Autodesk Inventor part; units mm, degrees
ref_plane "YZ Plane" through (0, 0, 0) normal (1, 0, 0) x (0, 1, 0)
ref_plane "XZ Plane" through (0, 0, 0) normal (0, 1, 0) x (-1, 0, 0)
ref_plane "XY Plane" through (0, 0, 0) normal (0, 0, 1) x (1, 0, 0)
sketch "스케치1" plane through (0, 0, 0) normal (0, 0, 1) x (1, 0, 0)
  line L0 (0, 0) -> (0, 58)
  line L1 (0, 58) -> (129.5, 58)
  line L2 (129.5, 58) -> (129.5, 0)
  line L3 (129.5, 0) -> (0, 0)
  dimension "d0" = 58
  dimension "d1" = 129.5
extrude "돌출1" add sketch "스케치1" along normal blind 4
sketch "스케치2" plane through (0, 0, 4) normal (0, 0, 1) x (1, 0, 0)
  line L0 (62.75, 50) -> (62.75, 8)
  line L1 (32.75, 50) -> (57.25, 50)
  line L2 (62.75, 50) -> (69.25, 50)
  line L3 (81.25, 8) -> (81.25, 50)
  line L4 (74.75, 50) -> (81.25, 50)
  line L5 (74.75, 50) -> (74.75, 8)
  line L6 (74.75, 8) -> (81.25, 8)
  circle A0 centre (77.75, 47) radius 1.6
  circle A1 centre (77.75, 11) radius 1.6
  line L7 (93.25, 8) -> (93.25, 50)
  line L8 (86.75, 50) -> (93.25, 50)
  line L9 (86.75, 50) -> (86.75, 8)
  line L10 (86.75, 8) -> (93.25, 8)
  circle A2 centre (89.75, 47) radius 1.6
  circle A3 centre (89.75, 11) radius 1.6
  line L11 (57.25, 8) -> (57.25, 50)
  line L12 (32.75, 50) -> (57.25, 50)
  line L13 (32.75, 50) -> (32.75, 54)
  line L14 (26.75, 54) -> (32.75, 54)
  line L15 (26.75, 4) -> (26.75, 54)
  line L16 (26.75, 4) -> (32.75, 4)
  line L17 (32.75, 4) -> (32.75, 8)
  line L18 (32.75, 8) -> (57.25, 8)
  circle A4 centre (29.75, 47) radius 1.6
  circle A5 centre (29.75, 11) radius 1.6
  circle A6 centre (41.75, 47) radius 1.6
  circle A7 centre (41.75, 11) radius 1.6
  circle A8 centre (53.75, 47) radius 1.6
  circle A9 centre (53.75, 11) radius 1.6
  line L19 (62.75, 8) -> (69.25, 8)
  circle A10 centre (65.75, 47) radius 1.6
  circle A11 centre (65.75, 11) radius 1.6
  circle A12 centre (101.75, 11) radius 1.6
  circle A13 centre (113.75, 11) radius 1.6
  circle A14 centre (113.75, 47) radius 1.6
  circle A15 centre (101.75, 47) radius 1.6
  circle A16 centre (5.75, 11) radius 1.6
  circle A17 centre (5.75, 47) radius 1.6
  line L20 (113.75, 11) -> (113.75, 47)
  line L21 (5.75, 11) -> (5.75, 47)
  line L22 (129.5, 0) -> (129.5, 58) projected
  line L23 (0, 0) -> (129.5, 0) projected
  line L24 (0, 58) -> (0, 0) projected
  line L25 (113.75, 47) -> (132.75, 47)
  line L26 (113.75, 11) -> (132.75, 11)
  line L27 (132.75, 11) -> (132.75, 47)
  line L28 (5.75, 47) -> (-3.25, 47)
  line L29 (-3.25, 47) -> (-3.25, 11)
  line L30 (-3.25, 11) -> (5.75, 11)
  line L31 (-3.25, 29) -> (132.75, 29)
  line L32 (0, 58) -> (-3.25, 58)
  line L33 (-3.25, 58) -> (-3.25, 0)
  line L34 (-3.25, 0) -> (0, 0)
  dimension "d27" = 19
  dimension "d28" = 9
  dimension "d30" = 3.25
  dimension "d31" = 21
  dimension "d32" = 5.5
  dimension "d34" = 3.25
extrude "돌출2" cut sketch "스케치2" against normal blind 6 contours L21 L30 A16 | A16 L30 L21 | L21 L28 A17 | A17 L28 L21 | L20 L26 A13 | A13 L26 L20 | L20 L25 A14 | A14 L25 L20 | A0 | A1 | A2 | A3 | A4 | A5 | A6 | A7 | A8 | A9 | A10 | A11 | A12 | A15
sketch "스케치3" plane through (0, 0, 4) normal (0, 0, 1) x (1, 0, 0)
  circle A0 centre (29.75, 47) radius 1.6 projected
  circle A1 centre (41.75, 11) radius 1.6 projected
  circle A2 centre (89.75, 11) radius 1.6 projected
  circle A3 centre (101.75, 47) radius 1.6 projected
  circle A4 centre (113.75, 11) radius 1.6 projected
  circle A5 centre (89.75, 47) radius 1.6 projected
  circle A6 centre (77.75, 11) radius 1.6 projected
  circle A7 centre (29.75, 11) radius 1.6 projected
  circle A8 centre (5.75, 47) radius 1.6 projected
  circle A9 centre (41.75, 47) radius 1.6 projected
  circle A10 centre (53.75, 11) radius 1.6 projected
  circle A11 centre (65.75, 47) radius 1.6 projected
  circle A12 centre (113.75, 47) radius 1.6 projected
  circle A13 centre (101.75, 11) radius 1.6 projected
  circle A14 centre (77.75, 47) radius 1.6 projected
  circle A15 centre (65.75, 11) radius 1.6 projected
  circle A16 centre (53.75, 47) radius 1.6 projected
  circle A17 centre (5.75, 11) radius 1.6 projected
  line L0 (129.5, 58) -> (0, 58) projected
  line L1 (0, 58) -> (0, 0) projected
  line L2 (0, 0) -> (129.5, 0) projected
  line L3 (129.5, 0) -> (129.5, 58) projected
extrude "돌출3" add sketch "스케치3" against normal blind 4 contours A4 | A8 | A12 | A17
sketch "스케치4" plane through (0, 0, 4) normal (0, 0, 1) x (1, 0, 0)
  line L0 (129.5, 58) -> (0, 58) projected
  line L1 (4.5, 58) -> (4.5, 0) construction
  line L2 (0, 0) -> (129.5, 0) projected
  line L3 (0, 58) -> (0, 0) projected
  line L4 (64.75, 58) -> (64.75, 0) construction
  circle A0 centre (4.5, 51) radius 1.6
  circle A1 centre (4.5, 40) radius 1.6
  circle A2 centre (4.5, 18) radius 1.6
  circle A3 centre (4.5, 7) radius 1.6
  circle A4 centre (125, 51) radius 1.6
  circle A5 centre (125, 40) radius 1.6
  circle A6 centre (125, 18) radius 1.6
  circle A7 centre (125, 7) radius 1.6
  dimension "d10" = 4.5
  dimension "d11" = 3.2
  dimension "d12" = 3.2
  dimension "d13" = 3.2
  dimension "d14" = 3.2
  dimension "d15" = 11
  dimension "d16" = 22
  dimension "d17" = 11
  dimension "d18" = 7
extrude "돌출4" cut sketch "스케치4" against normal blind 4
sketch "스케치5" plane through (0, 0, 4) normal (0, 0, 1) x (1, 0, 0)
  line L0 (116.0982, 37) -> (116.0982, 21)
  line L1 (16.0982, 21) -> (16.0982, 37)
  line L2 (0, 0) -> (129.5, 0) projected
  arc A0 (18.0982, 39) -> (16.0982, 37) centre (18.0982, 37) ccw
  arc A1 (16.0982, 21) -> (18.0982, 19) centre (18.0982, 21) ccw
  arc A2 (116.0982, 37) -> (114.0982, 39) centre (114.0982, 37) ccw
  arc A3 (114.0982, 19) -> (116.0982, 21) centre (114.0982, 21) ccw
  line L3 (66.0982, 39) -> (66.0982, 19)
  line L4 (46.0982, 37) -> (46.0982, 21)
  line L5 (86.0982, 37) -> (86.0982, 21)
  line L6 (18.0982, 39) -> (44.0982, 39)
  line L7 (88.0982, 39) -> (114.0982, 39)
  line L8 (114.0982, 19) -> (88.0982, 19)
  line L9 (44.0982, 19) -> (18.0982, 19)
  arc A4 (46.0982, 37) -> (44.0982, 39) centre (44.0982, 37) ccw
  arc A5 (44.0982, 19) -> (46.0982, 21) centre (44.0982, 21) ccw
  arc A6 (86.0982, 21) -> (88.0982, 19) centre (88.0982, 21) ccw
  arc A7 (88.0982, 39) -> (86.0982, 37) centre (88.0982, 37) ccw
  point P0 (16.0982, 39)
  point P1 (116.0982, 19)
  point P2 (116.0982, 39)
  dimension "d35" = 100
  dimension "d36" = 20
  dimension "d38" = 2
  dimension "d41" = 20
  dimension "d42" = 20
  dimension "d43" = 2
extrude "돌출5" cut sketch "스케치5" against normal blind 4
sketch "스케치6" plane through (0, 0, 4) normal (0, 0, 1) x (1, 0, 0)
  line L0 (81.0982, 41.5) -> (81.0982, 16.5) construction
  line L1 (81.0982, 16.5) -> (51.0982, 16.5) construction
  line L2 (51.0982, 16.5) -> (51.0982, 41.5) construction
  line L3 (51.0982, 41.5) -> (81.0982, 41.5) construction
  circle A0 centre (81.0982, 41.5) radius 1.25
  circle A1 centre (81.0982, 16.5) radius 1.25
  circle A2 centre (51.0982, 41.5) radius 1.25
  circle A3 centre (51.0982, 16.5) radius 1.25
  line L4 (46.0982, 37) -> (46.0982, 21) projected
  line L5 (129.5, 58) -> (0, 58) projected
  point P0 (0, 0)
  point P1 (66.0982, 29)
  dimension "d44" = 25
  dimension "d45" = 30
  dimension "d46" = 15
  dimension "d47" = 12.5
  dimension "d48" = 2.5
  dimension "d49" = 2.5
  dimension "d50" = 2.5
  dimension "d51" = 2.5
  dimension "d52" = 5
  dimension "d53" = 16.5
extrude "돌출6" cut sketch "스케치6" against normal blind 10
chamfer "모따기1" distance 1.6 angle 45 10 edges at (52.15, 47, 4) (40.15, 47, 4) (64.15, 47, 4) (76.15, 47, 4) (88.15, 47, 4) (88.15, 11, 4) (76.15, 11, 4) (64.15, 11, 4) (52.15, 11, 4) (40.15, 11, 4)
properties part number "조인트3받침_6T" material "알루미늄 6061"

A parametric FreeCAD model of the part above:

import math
import FreeCAD as App
import Part
import Sketcher

V = App.Vector
Q = App.Units.Quantity


def edges_at(feature, points):
    """Names of the edges that pass closest to the given points."""
    edges = feature.Shape.Edges
    near = lambda p: min(range(len(edges)), key=lambda i: edges[i].distToShape(Part.Vertex(*p))[0])
    return sorted({f"Edge{near(p) + 1}" for p in points})


def add_polygon(sketch, points):
    """Adds a closed chain of lines whose ends are joined by coincident constraints."""
    first, n = sketch.GeometryCount, len(points)
    for a, b in zip(points, points[1:] + points[:1]):
        sketch.addGeometry(Part.LineSegment(App.Vector(*a, 0), App.Vector(*b, 0)), False)
    for i in range(n):
        sketch.addConstraint(Sketcher.Constraint("Coincident", first + i, 2, first + (i + 1) % n, 1))

doc = App.newDocument("Part")
body = doc.addObject("PartDesign::Body", "Body")

sketch1 = doc.addObject("Sketcher::SketchObject", "Sketch")
body.addObject(sketch1)
sketch1.AttachmentSupport = (doc.XY_Plane, [""])
sketch1.MapMode = "FlatFace"
add_polygon(sketch1, [(0, 58), (0, 0), (130, 0), (130, 58)])
sketch1.addConstraint([
    Sketcher.Constraint("Vertical", 0),
    Sketcher.Constraint("Horizontal", 1),
    Sketcher.Constraint("Vertical", 2),
    Sketcher.Constraint("Horizontal", 3),
    Sketcher.Constraint("Coincident", 0, 2, -1, 1),
    Sketcher.Constraint("DistanceY", 0, 2, 0, 1, Q("58 mm")),
    Sketcher.Constraint("DistanceX", 1, 1, 1, 2, Q("129.5 mm")),
])
pad1 = doc.addObject("PartDesign::Pad", "Pad")
body.addObject(pad1)
pad1.Profile = sketch1
pad1.Length = 4

sketch2 = doc.addObject("Sketcher::SketchObject", "Sketch001")
body.addObject(sketch2)
sketch2.AttachmentSupport = (doc.XY_Plane, [""])
sketch2.MapMode = "FlatFace"
sketch2.AttachmentOffset = App.Placement(V(0, 0, 4), App.Rotation())
sketch2.addGeometry([
    Part.Circle(V(5.8, 11, 0), V(0, 0, 1), 1.6),
    Part.Circle(V(5.8, 47, 0), V(0, 0, 1), 1.6),
    Part.Circle(V(113.8, 11, 0), V(0, 0, 1), 1.6),
    Part.Circle(V(113.8, 47, 0), V(0, 0, 1), 1.6),
    Part.Circle(V(77.8, 47, 0), V(0, 0, 1), 1.6),
    Part.Circle(V(77.8, 11, 0), V(0, 0, 1), 1.6),
    Part.Circle(V(89.8, 47, 0), V(0, 0, 1), 1.6),
    Part.Circle(V(89.8, 11, 0), V(0, 0, 1), 1.6),
    Part.Circle(V(29.8, 47, 0), V(0, 0, 1), 1.6),
    Part.Circle(V(29.8, 11, 0), V(0, 0, 1), 1.6),
    Part.Circle(V(41.8, 47, 0), V(0, 0, 1), 1.6),
    Part.Circle(V(41.8, 11, 0), V(0, 0, 1), 1.6),
    Part.Circle(V(53.8, 47, 0), V(0, 0, 1), 1.6),
    Part.Circle(V(53.8, 11, 0), V(0, 0, 1), 1.6),
    Part.Circle(V(65.8, 47, 0), V(0, 0, 1), 1.6),
    Part.Circle(V(65.8, 11, 0), V(0, 0, 1), 1.6),
    Part.Circle(V(101.8, 11, 0), V(0, 0, 1), 1.6),
    Part.Circle(V(101.8, 47, 0), V(0, 0, 1), 1.6),
], False)
sketch2.addConstraint([
    Sketcher.Constraint("Equal", 0, 1),
    Sketcher.Constraint("Equal", 1, 2),
    Sketcher.Constraint("Equal", 2, 3),
    Sketcher.Constraint("Equal", 3, 4),
    Sketcher.Constraint("Equal", 4, 5),
    Sketcher.Constraint("Equal", 5, 6),
    Sketcher.Constraint("Equal", 6, 7),
    Sketcher.Constraint("Equal", 7, 8),
    Sketcher.Constraint("Equal", 8, 9),
    Sketcher.Constraint("Equal", 9, 10),
    Sketcher.Constraint("Equal", 10, 11),
    Sketcher.Constraint("Equal", 11, 12),
    Sketcher.Constraint("Equal", 12, 13),
    Sketcher.Constraint("Equal", 13, 14),
    Sketcher.Constraint("Equal", 14, 15),
    Sketcher.Constraint("Equal", 15, 16),
    Sketcher.Constraint("Equal", 16, 17),
    Sketcher.Constraint("Horizontal", 0, 3, 2, 3),
    Sketcher.Constraint("Horizontal", 1, 3, 3, 3),
    Sketcher.Constraint("Horizontal", 3, 3, 4, 3),
    Sketcher.Constraint("Horizontal", 2, 3, 5, 3),
    Sketcher.Constraint("Horizontal", 4, 3, 6, 3),
    Sketcher.Constraint("Horizontal", 5, 3, 7, 3),
    Sketcher.Constraint("Horizontal", 6, 3, 8, 3),
    Sketcher.Constraint("Horizontal", 7, 3, 9, 3),
    Sketcher.Constraint("Horizontal", 8, 3, 10, 3),
    Sketcher.Constraint("Horizontal", 9, 3, 11, 3),
    Sketcher.Constraint("Horizontal", 10, 3, 12, 3),
    Sketcher.Constraint("Horizontal", 11, 3, 13, 3),
    Sketcher.Constraint("Horizontal", 12, 3, 14, 3),
    Sketcher.Constraint("Horizontal", 13, 3, 15, 3),
    Sketcher.Constraint("Horizontal", 15, 3, 16, 3),
    Sketcher.Constraint("Horizontal", 14, 3, 17, 3),
    Sketcher.Constraint("Vertical", 0, 3, 1, 3),
    Sketcher.Constraint("Vertical", 2, 3, 3, 3),
    Sketcher.Constraint("Vertical", 4, 3, 5, 3),
    Sketcher.Constraint("Vertical", 6, 3, 7, 3),
    Sketcher.Constraint("Vertical", 8, 3, 9, 3),
    Sketcher.Constraint("Vertical", 10, 3, 11, 3),
    Sketcher.Constraint("Vertical", 12, 3, 13, 3),
    Sketcher.Constraint("Vertical", 14, 3, 15, 3),
    Sketcher.Constraint("Vertical", 16, 3, 17, 3),
    Sketcher.Constraint("Diameter", 0, Q("3.2 mm")),
    Sketcher.Constraint("DistanceY", -1, 1, 0, 3, Q("11 mm")),
    Sketcher.Constraint("DistanceY", -1, 1, 1, 3, Q("47 mm")),
    Sketcher.Constraint("DistanceX", 0, 3, 2, 3, Q("108 mm")),
    Sketcher.Constraint("DistanceX", 4, 3, 3, 3, Q("36 mm")),
    Sketcher.Constraint("DistanceX", 4, 3, 6, 3, Q("12 mm")),
    Sketcher.Constraint("DistanceX", 1, 3, 8, 3, Q("24 mm")),
    Sketcher.Constraint("DistanceX", 8, 3, 10, 3, Q("12 mm")),
    Sketcher.Constraint("DistanceX", 10, 3, 12, 3, Q("12 mm")),
    Sketcher.Constraint("DistanceX", 14, 3, 4, 3, Q("12 mm")),
    Sketcher.Constraint("DistanceX", 16, 3, 2, 3, Q("12 mm")),
    Sketcher.Constraint("DistanceX", -1, 1, 0, 3, Q("5.75 mm")),
])
pocket1 = doc.addObject("PartDesign::Pocket", "Pocket")
body.addObject(pocket1)
pocket1.Profile = sketch2
pocket1.Length = 6

sketch3 = doc.addObject("Sketcher::SketchObject", "Sketch002")
body.addObject(sketch3)
sketch3.AttachmentSupport = (doc.XY_Plane, [""])
sketch3.MapMode = "FlatFace"
sketch3.AttachmentOffset = App.Placement(V(0, 0, 4), App.Rotation())
sketch3.addGeometry([
    Part.Circle(V(113.8, 11, 0), V(0, 0, 1), 1.6),
    Part.Circle(V(5.8, 47, 0), V(0, 0, 1), 1.6),
    Part.Circle(V(113.8, 47, 0), V(0, 0, 1), 1.6),
    Part.Circle(V(5.8, 11, 0), V(0, 0, 1), 1.6),
], False)
sketch3.addConstraint([
    Sketcher.Constraint("Equal", 0, 1),
    Sketcher.Constraint("Equal", 1, 2),
    Sketcher.Constraint("Equal", 2, 3),
    Sketcher.Constraint("Horizontal", 1, 3, 2, 3),
    Sketcher.Constraint("Horizontal", 0, 3, 3, 3),
    Sketcher.Constraint("Vertical", 0, 3, 2, 3),
    Sketcher.Constraint("Vertical", 1, 3, 3, 3),
    Sketcher.Constraint("Diameter", 0, Q("3.2 mm")),
    Sketcher.Constraint("DistanceY", -1, 1, 0, 3, Q("11 mm")),
    Sketcher.Constraint("DistanceY", -1, 1, 1, 3, Q("47 mm")),
    Sketcher.Constraint("DistanceX", 1, 3, 0, 3, Q("108 mm")),
    Sketcher.Constraint("DistanceX", -1, 1, 0, 3, Q("113.75 mm")),
])
pad2 = doc.addObject("PartDesign::Pad", "Pad001")
body.addObject(pad2)
pad2.Profile = sketch3
pad2.Length = 4
pad2.Reversed = True

sketch4 = doc.addObject("Sketcher::SketchObject", "Sketch003")
body.addObject(sketch4)
sketch4.AttachmentSupport = (doc.XY_Plane, [""])
sketch4.MapMode = "FlatFace"
sketch4.AttachmentOffset = App.Placement(V(0, 0, 4), App.Rotation())
sketch4.addGeometry([
    Part.Circle(V(4.5, 51, 0), V(0, 0, 1), 1.6),
    Part.Circle(V(4.5, 40, 0), V(0, 0, 1), 1.6),
    Part.Circle(V(4.5, 18, 0), V(0, 0, 1), 1.6),
    Part.Circle(V(4.5, 7, 0), V(0, 0, 1), 1.6),
    Part.Circle(V(125, 51, 0), V(0, 0, 1), 1.6),
    Part.Circle(V(125, 40, 0), V(0, 0, 1), 1.6),
    Part.Circle(V(125, 18, 0), V(0, 0, 1), 1.6),
    Part.Circle(V(125, 7, 0), V(0, 0, 1), 1.6),
], False)
sketch4.addConstraint([
    Sketcher.Constraint("Equal", 0, 1),
    Sketcher.Constraint("Equal", 1, 2),
    Sketcher.Constraint("Equal", 2, 3),
    Sketcher.Constraint("Equal", 3, 4),
    Sketcher.Constraint("Equal", 4, 5),
    Sketcher.Constraint("Equal", 5, 6),
    Sketcher.Constraint("Equal", 6, 7),
    Sketcher.Constraint("Horizontal", 0, 3, 4, 3),
    Sketcher.Constraint("Horizontal", 1, 3, 5, 3),
    Sketcher.Constraint("Horizontal", 2, 3, 6, 3),
    Sketcher.Constraint("Horizontal", 3, 3, 7, 3),
    Sketcher.Constraint("Vertical", 0, 3, 1, 3),
    Sketcher.Constraint("Vertical", 1, 3, 2, 3),
    Sketcher.Constraint("Vertical", 2, 3, 3, 3),
    Sketcher.Constraint("Vertical", 4, 3, 5, 3),
    Sketcher.Constraint("Vertical", 5, 3, 6, 3),
    Sketcher.Constraint("Vertical", 6, 3, 7, 3),
    Sketcher.Constraint("Diameter", 0, Q("3.2 mm")),
    Sketcher.Constraint("DistanceY", -1, 1, 3, 3, Q("7 mm")),
    Sketcher.Constraint("DistanceY", 1, 3, 0, 3, Q("11 mm")),
    Sketcher.Constraint("DistanceY", 2, 3, 1, 3, Q("22 mm")),
    Sketcher.Constraint("DistanceY", 3, 3, 2, 3, Q("11 mm")),
    Sketcher.Constraint("DistanceX", -1, 1, 0, 3, Q("4.5 mm")),
    Sketcher.Constraint("DistanceX", -1, 1, 4, 3, Q("125 mm")),
])
pocket2 = doc.addObject("PartDesign::Pocket", "Pocket001")
body.addObject(pocket2)
pocket2.Profile = sketch4
pocket2.Length = 4

sketch5 = doc.addObject("Sketcher::SketchObject", "Sketch004")
body.addObject(sketch5)
sketch5.AttachmentSupport = (doc.XY_Plane, [""])
sketch5.MapMode = "FlatFace"
sketch5.AttachmentOffset = App.Placement(V(0, 0, 4), App.Rotation())
sketch5.addGeometry([
    Part.LineSegment(V(116.1, 21, 0), V(116.1, 37, 0)),
    Part.ArcOfCircle(Part.Circle(V(114.1, 37, 0), V(0, 0, 1), 2), math.radians(0), math.radians(90)),
    Part.LineSegment(V(114.1, 39, 0), V(88.1, 39, 0)),
    Part.ArcOfCircle(Part.Circle(V(88.1, 37, 0), V(0, 0, 1), 2), math.radians(90), math.radians(180)),
    Part.LineSegment(V(86.1, 37, 0), V(86.1, 21, 0)),
    Part.ArcOfCircle(Part.Circle(V(88.1, 21, 0), V(0, 0, 1), 2), math.radians(180), math.radians(270)),
    Part.LineSegment(V(88.1, 19, 0), V(114.1, 19, 0)),
    Part.ArcOfCircle(Part.Circle(V(114.1, 21, 0), V(0, 0, 1), 2), math.radians(-90), math.radians(0)),
    Part.LineSegment(V(16.1, 37, 0), V(16.1, 21, 0)),
    Part.ArcOfCircle(Part.Circle(V(18.1, 21, 0), V(0, 0, 1), 2), math.radians(180), math.radians(270)),
    Part.LineSegment(V(18.1, 19, 0), V(44.1, 19, 0)),
    Part.ArcOfCircle(Part.Circle(V(44.1, 21, 0), V(0, 0, 1), 2), math.radians(-90), math.radians(0)),
    Part.LineSegment(V(46.1, 21, 0), V(46.1, 37, 0)),
    Part.ArcOfCircle(Part.Circle(V(44.1, 37, 0), V(0, 0, 1), 2), math.radians(0), math.radians(90)),
    Part.LineSegment(V(44.1, 39, 0), V(18.1, 39, 0)),
    Part.ArcOfCircle(Part.Circle(V(18.1, 37, 0), V(0, 0, 1), 2), math.radians(90), math.radians(180)),
], False)
sketch5.addConstraint([
    Sketcher.Constraint("Tangent", 0, 2, 1, 1),
    Sketcher.Constraint("Tangent", 1, 2, 2, 1),
    Sketcher.Constraint("Tangent", 2, 2, 3, 1),
    Sketcher.Constraint("Tangent", 3, 2, 4, 1),
    Sketcher.Constraint("Tangent", 4, 2, 5, 1),
    Sketcher.Constraint("Tangent", 5, 2, 6, 1),
    Sketcher.Constraint("Tangent", 6, 2, 7, 1),
    Sketcher.Constraint("Tangent", 7, 2, 0, 1),
    Sketcher.Constraint("Tangent", 8, 2, 9, 1),
    Sketcher.Constraint("Tangent", 9, 2, 10, 1),
    Sketcher.Constraint("Tangent", 10, 2, 11, 1),
    Sketcher.Constraint("Tangent", 11, 2, 12, 1),
    Sketcher.Constraint("Tangent", 12, 2, 13, 1),
    Sketcher.Constraint("Tangent", 13, 2, 14, 1),
    Sketcher.Constraint("Tangent", 14, 2, 15, 1),
    Sketcher.Constraint("Tangent", 15, 2, 8, 1),
    Sketcher.Constraint("Vertical", 0),
    Sketcher.Constraint("Horizontal", 2),
    Sketcher.Constraint("Vertical", 4),
    Sketcher.Constraint("Horizontal", 6),
    Sketcher.Constraint("Vertical", 8),
    Sketcher.Constraint("Horizontal", 10),
    Sketcher.Constraint("Vertical", 12),
    Sketcher.Constraint("Horizontal", 14),
    Sketcher.Constraint("Equal", 1, 3),
    Sketcher.Constraint("Equal", 3, 5),
    Sketcher.Constraint("Equal", 5, 7),
    Sketcher.Constraint("Equal", 7, 9),
    Sketcher.Constraint("Equal", 9, 11),
    Sketcher.Constraint("Equal", 11, 13),
    Sketcher.Constraint("Equal", 13, 15),
    Sketcher.Constraint("Horizontal", 7, 3, 9, 3),
    Sketcher.Constraint("Horizontal", 3, 3, 13, 3),
    Sketcher.Constraint("Equal", 6, 10),
    Sketcher.Constraint("Radius", 1, Q("2 mm")),
    Sketcher.Constraint("DistanceY", 5, 2, 2, 2, Q("20 mm")),
    Sketcher.Constraint("DistanceX", 2, 2, 2, 1, Q("26 mm")),
    Sketcher.Constraint("DistanceY", -1, 1, 1, 3, Q("37 mm")),
    Sketcher.Constraint("DistanceX", 9, 3, 5, 3, Q("70 mm")),
    Sketcher.Constraint("DistanceX", -1, 1, 1, 3, Q("114.0982 mm")),
])
pocket3 = doc.addObject("PartDesign::Pocket", "Pocket002")
body.addObject(pocket3)
pocket3.Profile = sketch5
pocket3.Length = 4

sketch6 = doc.addObject("Sketcher::SketchObject", "Sketch005")
body.addObject(sketch6)
sketch6.AttachmentSupport = (doc.XY_Plane, [""])
sketch6.MapMode = "FlatFace"
sketch6.AttachmentOffset = App.Placement(V(0, 0, 4), App.Rotation())
sketch6.addGeometry([
    Part.Circle(V(81.1, 41.5, 0), V(0, 0, 1), 1.2),
    Part.Circle(V(81.1, 16.5, 0), V(0, 0, 1), 1.2),
    Part.Circle(V(51.1, 41.5, 0), V(0, 0, 1), 1.2),
    Part.Circle(V(51.1, 16.5, 0), V(0, 0, 1), 1.2),
], False)
sketch6.addConstraint([
    Sketcher.Constraint("Equal", 0, 1),
    Sketcher.Constraint("Equal", 1, 2),
    Sketcher.Constraint("Equal", 2, 3),
    Sketcher.Constraint("Horizontal", 0, 3, 2, 3),
    Sketcher.Constraint("Horizontal", 1, 3, 3, 3),
    Sketcher.Constraint("Vertical", 0, 3, 1, 3),
    Sketcher.Constraint("Vertical", 2, 3, 3, 3),
    Sketcher.Constraint("Diameter", 0, Q("2.5 mm")),
    Sketcher.Constraint("DistanceY", 1, 3, 0, 3, Q("25 mm")),
    Sketcher.Constraint("DistanceX", 2, 3, 0, 3, Q("30 mm")),
    Sketcher.Constraint("DistanceY", -1, 1, 1, 3, Q("16.5 mm")),
    Sketcher.Constraint("DistanceX", -1, 1, 0, 3, Q("81.0982 mm")),
])
pocket4 = doc.addObject("PartDesign::Pocket", "Pocket003")
body.addObject(pocket4)
pocket4.Profile = sketch6
pocket4.Length = 10
doc.recompute()

chamfer = doc.addObject("PartDesign::Chamfer", "Chamfer")
body.addObject(chamfer)
chamfer.Base = (pocket4, edges_at(pocket4, [
    (52.15, 47, 4),
    (40.15, 47, 4),
    (64.15, 47, 4),
    (76.15, 47, 4),
    (88.15, 47, 4),
    (88.15, 11, 4),
    (76.15, 11, 4),
    (64.15, 11, 4),
    (52.15, 11, 4),
    (40.15, 11, 4),
]))
chamfer.Size = 1.6

doc.recompute()
